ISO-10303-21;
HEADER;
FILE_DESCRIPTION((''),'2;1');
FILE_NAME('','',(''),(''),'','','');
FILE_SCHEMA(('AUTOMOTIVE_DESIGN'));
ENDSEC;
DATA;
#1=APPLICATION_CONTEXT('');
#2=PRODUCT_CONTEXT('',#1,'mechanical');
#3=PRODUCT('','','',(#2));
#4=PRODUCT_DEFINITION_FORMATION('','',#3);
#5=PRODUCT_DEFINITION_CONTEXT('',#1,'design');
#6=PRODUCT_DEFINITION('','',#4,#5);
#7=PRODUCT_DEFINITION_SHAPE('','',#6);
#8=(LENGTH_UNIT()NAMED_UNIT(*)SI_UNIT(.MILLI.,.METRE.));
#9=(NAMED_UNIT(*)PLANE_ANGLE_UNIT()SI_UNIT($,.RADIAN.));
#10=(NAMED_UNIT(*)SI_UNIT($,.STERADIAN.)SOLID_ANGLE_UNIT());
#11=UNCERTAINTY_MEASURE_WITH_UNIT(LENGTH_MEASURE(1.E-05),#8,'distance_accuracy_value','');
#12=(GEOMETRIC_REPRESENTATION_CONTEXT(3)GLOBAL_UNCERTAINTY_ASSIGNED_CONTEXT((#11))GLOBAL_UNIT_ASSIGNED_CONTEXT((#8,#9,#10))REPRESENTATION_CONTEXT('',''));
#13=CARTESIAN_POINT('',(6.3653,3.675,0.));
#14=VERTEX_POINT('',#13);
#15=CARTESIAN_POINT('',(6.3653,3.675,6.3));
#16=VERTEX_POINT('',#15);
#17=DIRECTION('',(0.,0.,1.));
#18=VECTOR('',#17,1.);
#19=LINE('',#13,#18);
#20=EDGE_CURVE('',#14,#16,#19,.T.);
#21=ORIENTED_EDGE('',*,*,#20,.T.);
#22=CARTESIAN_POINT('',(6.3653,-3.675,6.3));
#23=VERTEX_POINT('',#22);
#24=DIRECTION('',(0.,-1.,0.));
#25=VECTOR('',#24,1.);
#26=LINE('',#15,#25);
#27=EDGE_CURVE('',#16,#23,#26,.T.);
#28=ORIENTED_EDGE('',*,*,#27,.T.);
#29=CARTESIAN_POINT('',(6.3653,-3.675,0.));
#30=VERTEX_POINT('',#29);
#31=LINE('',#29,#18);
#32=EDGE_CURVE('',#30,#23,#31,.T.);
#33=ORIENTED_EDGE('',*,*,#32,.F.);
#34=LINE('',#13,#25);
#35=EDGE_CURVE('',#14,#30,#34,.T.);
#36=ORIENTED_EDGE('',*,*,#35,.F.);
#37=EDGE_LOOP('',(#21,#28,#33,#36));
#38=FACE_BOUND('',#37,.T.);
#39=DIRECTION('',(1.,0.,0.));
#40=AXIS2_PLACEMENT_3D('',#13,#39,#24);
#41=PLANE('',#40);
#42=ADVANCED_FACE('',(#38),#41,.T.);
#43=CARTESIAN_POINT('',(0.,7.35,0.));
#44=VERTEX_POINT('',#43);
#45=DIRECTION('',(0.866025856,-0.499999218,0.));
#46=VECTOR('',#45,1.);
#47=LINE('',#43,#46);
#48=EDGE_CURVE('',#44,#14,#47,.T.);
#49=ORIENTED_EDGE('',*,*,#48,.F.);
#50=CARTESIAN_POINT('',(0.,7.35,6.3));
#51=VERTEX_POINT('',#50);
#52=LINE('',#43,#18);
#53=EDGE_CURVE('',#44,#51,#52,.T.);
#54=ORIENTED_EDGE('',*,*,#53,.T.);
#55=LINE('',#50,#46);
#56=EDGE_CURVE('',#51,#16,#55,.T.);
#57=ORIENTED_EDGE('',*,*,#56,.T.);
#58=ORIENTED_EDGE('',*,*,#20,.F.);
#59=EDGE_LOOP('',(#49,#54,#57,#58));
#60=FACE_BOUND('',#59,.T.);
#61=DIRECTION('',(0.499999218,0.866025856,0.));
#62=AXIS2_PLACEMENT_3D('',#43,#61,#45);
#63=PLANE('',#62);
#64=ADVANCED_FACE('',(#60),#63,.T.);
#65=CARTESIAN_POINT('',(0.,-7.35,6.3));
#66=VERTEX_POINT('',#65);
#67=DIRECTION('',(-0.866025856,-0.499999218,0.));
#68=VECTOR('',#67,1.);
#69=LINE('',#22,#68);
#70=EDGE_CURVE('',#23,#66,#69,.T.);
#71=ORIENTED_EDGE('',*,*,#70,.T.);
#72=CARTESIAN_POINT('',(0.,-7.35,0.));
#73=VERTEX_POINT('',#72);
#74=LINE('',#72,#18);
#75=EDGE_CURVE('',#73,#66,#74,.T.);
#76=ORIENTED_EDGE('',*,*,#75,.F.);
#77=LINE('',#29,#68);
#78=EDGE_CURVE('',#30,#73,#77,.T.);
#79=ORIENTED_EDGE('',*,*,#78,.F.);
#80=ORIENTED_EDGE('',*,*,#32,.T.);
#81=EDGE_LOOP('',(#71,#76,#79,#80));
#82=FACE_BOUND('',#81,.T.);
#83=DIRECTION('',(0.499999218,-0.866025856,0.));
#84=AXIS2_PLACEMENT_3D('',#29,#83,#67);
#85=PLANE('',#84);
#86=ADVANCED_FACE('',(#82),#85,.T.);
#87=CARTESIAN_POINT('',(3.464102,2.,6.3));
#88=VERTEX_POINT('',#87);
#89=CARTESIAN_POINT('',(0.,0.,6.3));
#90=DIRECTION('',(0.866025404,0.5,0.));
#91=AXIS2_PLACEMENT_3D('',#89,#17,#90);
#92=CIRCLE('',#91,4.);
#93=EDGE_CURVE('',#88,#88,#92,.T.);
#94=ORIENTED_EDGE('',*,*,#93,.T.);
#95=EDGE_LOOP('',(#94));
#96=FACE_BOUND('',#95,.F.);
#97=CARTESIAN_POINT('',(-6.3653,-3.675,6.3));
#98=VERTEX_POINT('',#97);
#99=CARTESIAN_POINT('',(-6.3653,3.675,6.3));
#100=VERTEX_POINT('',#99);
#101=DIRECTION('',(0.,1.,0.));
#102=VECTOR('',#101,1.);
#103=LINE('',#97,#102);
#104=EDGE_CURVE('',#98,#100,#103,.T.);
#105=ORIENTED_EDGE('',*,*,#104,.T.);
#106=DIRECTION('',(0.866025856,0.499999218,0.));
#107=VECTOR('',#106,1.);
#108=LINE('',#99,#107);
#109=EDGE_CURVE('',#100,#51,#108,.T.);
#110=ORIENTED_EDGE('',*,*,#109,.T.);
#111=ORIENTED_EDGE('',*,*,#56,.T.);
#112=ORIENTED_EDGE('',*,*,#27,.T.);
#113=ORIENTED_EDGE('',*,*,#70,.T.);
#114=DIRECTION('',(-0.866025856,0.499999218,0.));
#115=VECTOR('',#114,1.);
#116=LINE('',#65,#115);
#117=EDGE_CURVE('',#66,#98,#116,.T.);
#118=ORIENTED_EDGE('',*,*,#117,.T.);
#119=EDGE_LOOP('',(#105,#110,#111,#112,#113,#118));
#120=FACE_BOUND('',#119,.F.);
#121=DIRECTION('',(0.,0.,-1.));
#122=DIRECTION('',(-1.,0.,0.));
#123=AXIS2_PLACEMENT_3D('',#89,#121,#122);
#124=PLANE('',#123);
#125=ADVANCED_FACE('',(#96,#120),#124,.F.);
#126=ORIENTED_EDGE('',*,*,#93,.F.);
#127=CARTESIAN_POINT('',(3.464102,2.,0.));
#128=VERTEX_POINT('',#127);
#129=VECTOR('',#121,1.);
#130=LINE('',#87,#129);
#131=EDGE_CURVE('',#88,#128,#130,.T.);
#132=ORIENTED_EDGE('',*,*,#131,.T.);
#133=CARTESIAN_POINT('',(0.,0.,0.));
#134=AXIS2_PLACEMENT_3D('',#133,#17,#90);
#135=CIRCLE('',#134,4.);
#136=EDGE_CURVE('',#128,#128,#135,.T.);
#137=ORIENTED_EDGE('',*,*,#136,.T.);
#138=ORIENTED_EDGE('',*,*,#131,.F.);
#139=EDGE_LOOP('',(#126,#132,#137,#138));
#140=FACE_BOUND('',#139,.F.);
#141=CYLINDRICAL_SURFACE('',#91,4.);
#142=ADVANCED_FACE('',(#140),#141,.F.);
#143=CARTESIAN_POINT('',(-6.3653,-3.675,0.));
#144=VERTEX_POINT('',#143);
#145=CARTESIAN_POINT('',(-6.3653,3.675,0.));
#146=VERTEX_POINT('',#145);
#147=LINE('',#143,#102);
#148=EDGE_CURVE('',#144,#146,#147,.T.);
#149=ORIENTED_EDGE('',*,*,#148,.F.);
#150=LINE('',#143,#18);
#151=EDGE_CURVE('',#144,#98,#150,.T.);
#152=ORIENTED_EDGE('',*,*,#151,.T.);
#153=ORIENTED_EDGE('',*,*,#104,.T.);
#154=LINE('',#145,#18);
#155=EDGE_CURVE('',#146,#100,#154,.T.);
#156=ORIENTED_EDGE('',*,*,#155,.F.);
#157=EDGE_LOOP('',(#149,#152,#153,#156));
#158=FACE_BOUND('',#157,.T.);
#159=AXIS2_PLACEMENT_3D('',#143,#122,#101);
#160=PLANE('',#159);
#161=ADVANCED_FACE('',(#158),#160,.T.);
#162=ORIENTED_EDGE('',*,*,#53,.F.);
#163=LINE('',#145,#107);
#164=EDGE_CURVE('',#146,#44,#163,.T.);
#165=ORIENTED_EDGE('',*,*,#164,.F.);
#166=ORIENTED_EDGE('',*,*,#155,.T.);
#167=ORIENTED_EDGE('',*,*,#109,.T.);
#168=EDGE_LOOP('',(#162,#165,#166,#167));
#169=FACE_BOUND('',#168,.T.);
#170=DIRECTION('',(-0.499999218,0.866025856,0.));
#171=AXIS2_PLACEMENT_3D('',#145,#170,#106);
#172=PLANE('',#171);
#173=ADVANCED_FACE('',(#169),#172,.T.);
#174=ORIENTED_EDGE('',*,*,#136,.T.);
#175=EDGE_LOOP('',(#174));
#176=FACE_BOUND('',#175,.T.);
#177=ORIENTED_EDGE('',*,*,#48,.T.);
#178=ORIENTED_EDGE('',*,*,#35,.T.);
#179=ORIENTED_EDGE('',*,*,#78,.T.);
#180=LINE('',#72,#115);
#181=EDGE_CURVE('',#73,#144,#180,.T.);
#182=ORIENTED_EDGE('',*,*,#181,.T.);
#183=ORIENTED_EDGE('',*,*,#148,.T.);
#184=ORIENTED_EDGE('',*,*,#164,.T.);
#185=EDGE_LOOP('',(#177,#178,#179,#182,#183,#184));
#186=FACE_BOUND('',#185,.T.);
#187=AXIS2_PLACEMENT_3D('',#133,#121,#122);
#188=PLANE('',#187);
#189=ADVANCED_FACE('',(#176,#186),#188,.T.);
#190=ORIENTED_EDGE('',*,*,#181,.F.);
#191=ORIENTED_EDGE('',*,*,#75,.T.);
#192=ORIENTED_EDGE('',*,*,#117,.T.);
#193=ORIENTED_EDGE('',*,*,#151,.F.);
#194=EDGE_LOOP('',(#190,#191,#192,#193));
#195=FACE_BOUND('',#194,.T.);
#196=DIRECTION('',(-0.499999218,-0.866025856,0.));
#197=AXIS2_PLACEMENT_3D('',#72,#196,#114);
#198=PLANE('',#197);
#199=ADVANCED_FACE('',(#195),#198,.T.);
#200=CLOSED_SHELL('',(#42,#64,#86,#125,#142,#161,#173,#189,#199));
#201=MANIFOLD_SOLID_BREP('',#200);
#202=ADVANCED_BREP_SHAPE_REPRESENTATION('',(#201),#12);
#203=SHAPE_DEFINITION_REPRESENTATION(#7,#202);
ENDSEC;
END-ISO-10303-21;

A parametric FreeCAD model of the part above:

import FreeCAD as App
import Part
import Sketcher
from FreeCAD import Vector
Q = App.Units.Quantity

doc = App.newDocument("Part")
body = doc.addObject("PartDesign::Body", "Body")

sketch1 = body.newObject("Sketcher::SketchObject", "Sketch")
sketch1.AttachmentSupport = (doc.getObject("XY_Plane"), [""])
sketch1.MapMode = "FlatFace"
sketch1.addGeometry(Part.LineSegment(Vector(6, 4, 0), Vector(0, 7, 0)), False)
sketch1.addGeometry(Part.LineSegment(Vector(0, 7, 0), Vector(-6, 4, 0)), False)
sketch1.addGeometry(Part.LineSegment(Vector(-6, 4, 0), Vector(-6, -4, 0)), False)
sketch1.addGeometry(Part.LineSegment(Vector(-6, -4, 0), Vector(0, -7, 0)), False)
sketch1.addGeometry(Part.LineSegment(Vector(0, -7, 0), Vector(6, -4, 0)), False)
sketch1.addGeometry(Part.LineSegment(Vector(6, -4, 0), Vector(6, 4, 0)), False)
sketch1.addConstraint(Sketcher.Constraint("Coincident", 0, 2, 1, 1))
sketch1.addConstraint(Sketcher.Constraint("Coincident", 1, 2, 2, 1))
sketch1.addConstraint(Sketcher.Constraint("Coincident", 2, 2, 3, 1))
sketch1.addConstraint(Sketcher.Constraint("Coincident", 3, 2, 4, 1))
sketch1.addConstraint(Sketcher.Constraint("Coincident", 4, 2, 5, 1))
sketch1.addConstraint(Sketcher.Constraint("Coincident", 5, 2, 0, 1))
sketch1.addConstraint(Sketcher.Constraint("Vertical", 2))
sketch1.addConstraint(Sketcher.Constraint("Vertical", 5))
sketch1.addConstraint(Sketcher.Constraint("Symmetric", 0, 2, 3, 2, -1, 1))
sketch1.addConstraint(Sketcher.Constraint("Symmetric", 1, 2, 4, 2, -1, 1))
sketch1.addConstraint(Sketcher.Constraint("PointOnObject", 0, 2, -2))
sketch1.addConstraint(Sketcher.Constraint("Parallel", 0, 3))
sketch1.addConstraint(Sketcher.Constraint("Horizontal", 2, 2, 4, 2))
sketch1.addConstraint(Sketcher.Constraint("Angle", 0, Q("150 deg")))
sketch1.addConstraint(Sketcher.Constraint("DistanceY", 2, 2, 2, 1, 7.35))
sketch1.addConstraint(Sketcher.Constraint("DistanceY", 3, 2, 0, 2, 14.7))
pad1 = body.newObject("PartDesign::Pad", "Pad")
pad1.Profile = sketch1
pad1.Length = 6.3

sketch2 = body.newObject("Sketcher::SketchObject", "Sketch001")
sketch2.AttachmentSupport = (doc.getObject("XY_Plane"), [""])
sketch2.MapMode = "FlatFace"
sketch2.AttachmentOffset = App.Placement(Vector(0, 0, 6.3), App.Rotation())
sketch2.addGeometry(Part.Circle(Vector(0, 0, 0), Vector(0, 0, 1), 4), False)
sketch2.addConstraint(Sketcher.Constraint("Coincident", 0, 3, -1, 1))
sketch2.addConstraint(Sketcher.Constraint("Diameter", 0, 8.0))
pocket1 = body.newObject("PartDesign::Pocket", "Pocket")
pocket1.Profile = sketch2
pocket1.Type = "ThroughAll"

doc.recompute()
